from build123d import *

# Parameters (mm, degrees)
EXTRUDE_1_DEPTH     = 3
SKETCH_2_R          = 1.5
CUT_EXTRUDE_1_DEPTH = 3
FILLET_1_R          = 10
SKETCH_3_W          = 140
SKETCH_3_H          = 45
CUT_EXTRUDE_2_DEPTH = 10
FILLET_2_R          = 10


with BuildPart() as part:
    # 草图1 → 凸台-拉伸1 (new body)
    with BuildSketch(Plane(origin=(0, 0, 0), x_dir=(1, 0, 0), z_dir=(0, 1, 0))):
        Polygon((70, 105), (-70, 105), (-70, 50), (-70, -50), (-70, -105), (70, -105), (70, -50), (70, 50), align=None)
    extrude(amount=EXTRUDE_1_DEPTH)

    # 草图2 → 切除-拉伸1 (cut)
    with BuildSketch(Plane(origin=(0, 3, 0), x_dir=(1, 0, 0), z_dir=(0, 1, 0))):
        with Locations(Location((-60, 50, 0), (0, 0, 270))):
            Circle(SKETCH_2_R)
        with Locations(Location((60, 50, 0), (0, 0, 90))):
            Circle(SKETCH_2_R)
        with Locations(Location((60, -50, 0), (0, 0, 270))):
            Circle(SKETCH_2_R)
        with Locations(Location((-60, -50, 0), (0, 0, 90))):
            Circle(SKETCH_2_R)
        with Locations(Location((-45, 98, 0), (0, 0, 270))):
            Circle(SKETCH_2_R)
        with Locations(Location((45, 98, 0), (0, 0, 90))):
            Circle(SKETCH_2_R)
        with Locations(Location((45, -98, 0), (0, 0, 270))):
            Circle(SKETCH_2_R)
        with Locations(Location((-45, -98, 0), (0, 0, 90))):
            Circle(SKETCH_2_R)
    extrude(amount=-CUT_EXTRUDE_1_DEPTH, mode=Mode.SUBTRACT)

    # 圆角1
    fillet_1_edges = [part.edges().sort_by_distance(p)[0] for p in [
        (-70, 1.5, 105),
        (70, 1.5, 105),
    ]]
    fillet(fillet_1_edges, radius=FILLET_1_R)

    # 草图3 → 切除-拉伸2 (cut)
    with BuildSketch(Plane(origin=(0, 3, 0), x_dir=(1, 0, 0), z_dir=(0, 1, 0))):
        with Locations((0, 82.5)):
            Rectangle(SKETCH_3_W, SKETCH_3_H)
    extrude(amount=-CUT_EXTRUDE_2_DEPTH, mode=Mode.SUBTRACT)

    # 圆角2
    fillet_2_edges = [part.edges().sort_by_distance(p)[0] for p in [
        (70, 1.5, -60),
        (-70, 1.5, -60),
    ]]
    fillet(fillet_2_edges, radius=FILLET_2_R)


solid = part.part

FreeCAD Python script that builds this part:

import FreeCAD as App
import Part
import Sketcher
Q = App.Units.Quantity


def edges_at(feature, points):
    """Names of the edges that pass closest to the given points."""
    edges = feature.Shape.Edges
    near = lambda p: min(range(len(edges)), key=lambda i: edges[i].distToShape(Part.Vertex(*p))[0])
    return sorted({f"Edge{near(p) + 1}" for p in points})


def add_polygon(sketch, points):
    """Adds a closed chain of lines whose ends are joined by coincident constraints."""
    first, n = sketch.GeometryCount, len(points)
    for a, b in zip(points, points[1:] + points[:1]):
        sketch.addGeometry(Part.LineSegment(App.Vector(*a, 0), App.Vector(*b, 0)), False)
    for i in range(n):
        sketch.addConstraint(Sketcher.Constraint("Coincident", first + i, 2, first + (i + 1) % n, 1))

doc = App.newDocument("Part")
body = doc.addObject("PartDesign::Body", "Body")

sketch1 = body.newObject("Sketcher::SketchObject", "Sketch")
sketch1.AttachmentSupport = (doc.getObject("XZ_Plane"), [""])
sketch1.MapMode = "FlatFace"
add_polygon(sketch1, [(70, -105), (-70, -105), (-70, 105), (70, 105)])
sketch1.addConstraint([
    Sketcher.Constraint("Horizontal", 0),
    Sketcher.Constraint("Vertical", 1),
    Sketcher.Constraint("Horizontal", 2),
    Sketcher.Constraint("Vertical", 3),
    Sketcher.Constraint("Symmetric", 0, 2, 2, 2, -1, 1),
    Sketcher.Constraint("DistanceX", 0, 2, 0, 1, Q("140 mm")),
    Sketcher.Constraint("DistanceY", 1, 1, 1, 2, Q("210 mm")),
])
pad1 = body.newObject("PartDesign::Pad", "Pad")
pad1.Profile = sketch1
pad1.Length = 3
pad1.Reversed = True

sketch2 = body.newObject("Sketcher::SketchObject", "Sketch001")
sketch2.AttachmentSupport = (doc.getObject("XZ_Plane"), [""])
sketch2.MapMode = "FlatFace"
sketch2.AttachmentOffset = App.Placement(App.Vector(0, 0, -3), App.Rotation())
sketch2.addGeometry([
    Part.Circle(App.Vector(-60, -50, 0), App.Vector(0, 0, 1), 1.5),
    Part.Circle(App.Vector(60, -50, 0), App.Vector(0, 0, 1), 1.5),
    Part.Circle(App.Vector(60, 50, 0), App.Vector(0, 0, 1), 1.5),
    Part.Circle(App.Vector(-60, 50, 0), App.Vector(0, 0, 1), 1.5),
    Part.Circle(App.Vector(-45, -98, 0), App.Vector(0, 0, 1), 1.5),
    Part.Circle(App.Vector(45, -98, 0), App.Vector(0, 0, 1), 1.5),
    Part.Circle(App.Vector(45, 98, 0), App.Vector(0, 0, 1), 1.5),
    Part.Circle(App.Vector(-45, 98, 0), App.Vector(0, 0, 1), 1.5),
], False)
sketch2.addConstraint([
    Sketcher.Constraint("Equal", 0, 1),
    Sketcher.Constraint("Equal", 1, 2),
    Sketcher.Constraint("Equal", 2, 3),
    Sketcher.Constraint("Equal", 3, 4),
    Sketcher.Constraint("Equal", 4, 5),
    Sketcher.Constraint("Equal", 5, 6),
    Sketcher.Constraint("Equal", 6, 7),
    Sketcher.Constraint("Symmetric", 0, 3, 2, 3, -1, 1),
    Sketcher.Constraint("Symmetric", 1, 3, 3, 3, -1, 1),
    Sketcher.Constraint("Symmetric", 4, 3, 6, 3, -1, 1),
    Sketcher.Constraint("Symmetric", 5, 3, 7, 3, -1, 1),
    Sketcher.Constraint("Symmetric", 0, 3, 1, 3, -2),
    Sketcher.Constraint("Symmetric", 4, 3, 5, 3, -2),
    Sketcher.Constraint("Diameter", 0, Q("3 mm")),
    Sketcher.Constraint("DistanceX", 0, 3, -1, 1, Q("60 mm")),
    Sketcher.Constraint("DistanceY", 0, 3, -1, 1, Q("50 mm")),
    Sketcher.Constraint("DistanceX", 4, 3, -1, 1, Q("45 mm")),
    Sketcher.Constraint("DistanceY", 4, 3, -1, 1, Q("98 mm")),
])
pocket1 = body.newObject("PartDesign::Pocket", "Pocket")
pocket1.Profile = sketch2
pocket1.Length = 3
pocket1.Reversed = True
doc.recompute()

fillet = body.newObject("PartDesign::Fillet", "Fillet")
fillet.Base = (pocket1, edges_at(pocket1, [(-70, 1.5, 105), (70, 1.5, 105)]))
fillet.Radius = 10

sketch3 = body.newObject("Sketcher::SketchObject", "Sketch002")
sketch3.AttachmentSupport = (doc.getObject("XZ_Plane"), [""])
sketch3.MapMode = "FlatFace"
sketch3.AttachmentOffset = App.Placement(App.Vector(0, 0, -3), App.Rotation())
add_polygon(sketch3, [(-70, -105), (-70, -60), (70, -60), (70, -105)])
sketch3.addConstraint([
    Sketcher.Constraint("Vertical", 0),
    Sketcher.Constraint("Horizontal", 1),
    Sketcher.Constraint("Vertical", 2),
    Sketcher.Constraint("Horizontal", 3),
    Sketcher.Constraint("DistanceX", 1, 1, 1, 2, Q("140 mm")),
    Sketcher.Constraint("DistanceY", 0, 1, 0, 2, Q("45 mm")),
    Sketcher.Constraint("DistanceX", 0, 2, -1, 1, Q("70 mm")),
    Sketcher.Constraint("DistanceY", 0, 2, -1, 1, Q("60 mm")),
])
pocket2 = body.newObject("PartDesign::Pocket", "Pocket001")
pocket2.Profile = sketch3
pocket2.Length = 10
pocket2.Reversed = True
doc.recompute()

fillet2 = body.newObject("PartDesign::Fillet", "Fillet001")
fillet2.Base = (pocket2, edges_at(pocket2, [(70, 1.5, -60), (-70, 1.5, -60)]))
fillet2.Radius = 10

doc.recompute()
